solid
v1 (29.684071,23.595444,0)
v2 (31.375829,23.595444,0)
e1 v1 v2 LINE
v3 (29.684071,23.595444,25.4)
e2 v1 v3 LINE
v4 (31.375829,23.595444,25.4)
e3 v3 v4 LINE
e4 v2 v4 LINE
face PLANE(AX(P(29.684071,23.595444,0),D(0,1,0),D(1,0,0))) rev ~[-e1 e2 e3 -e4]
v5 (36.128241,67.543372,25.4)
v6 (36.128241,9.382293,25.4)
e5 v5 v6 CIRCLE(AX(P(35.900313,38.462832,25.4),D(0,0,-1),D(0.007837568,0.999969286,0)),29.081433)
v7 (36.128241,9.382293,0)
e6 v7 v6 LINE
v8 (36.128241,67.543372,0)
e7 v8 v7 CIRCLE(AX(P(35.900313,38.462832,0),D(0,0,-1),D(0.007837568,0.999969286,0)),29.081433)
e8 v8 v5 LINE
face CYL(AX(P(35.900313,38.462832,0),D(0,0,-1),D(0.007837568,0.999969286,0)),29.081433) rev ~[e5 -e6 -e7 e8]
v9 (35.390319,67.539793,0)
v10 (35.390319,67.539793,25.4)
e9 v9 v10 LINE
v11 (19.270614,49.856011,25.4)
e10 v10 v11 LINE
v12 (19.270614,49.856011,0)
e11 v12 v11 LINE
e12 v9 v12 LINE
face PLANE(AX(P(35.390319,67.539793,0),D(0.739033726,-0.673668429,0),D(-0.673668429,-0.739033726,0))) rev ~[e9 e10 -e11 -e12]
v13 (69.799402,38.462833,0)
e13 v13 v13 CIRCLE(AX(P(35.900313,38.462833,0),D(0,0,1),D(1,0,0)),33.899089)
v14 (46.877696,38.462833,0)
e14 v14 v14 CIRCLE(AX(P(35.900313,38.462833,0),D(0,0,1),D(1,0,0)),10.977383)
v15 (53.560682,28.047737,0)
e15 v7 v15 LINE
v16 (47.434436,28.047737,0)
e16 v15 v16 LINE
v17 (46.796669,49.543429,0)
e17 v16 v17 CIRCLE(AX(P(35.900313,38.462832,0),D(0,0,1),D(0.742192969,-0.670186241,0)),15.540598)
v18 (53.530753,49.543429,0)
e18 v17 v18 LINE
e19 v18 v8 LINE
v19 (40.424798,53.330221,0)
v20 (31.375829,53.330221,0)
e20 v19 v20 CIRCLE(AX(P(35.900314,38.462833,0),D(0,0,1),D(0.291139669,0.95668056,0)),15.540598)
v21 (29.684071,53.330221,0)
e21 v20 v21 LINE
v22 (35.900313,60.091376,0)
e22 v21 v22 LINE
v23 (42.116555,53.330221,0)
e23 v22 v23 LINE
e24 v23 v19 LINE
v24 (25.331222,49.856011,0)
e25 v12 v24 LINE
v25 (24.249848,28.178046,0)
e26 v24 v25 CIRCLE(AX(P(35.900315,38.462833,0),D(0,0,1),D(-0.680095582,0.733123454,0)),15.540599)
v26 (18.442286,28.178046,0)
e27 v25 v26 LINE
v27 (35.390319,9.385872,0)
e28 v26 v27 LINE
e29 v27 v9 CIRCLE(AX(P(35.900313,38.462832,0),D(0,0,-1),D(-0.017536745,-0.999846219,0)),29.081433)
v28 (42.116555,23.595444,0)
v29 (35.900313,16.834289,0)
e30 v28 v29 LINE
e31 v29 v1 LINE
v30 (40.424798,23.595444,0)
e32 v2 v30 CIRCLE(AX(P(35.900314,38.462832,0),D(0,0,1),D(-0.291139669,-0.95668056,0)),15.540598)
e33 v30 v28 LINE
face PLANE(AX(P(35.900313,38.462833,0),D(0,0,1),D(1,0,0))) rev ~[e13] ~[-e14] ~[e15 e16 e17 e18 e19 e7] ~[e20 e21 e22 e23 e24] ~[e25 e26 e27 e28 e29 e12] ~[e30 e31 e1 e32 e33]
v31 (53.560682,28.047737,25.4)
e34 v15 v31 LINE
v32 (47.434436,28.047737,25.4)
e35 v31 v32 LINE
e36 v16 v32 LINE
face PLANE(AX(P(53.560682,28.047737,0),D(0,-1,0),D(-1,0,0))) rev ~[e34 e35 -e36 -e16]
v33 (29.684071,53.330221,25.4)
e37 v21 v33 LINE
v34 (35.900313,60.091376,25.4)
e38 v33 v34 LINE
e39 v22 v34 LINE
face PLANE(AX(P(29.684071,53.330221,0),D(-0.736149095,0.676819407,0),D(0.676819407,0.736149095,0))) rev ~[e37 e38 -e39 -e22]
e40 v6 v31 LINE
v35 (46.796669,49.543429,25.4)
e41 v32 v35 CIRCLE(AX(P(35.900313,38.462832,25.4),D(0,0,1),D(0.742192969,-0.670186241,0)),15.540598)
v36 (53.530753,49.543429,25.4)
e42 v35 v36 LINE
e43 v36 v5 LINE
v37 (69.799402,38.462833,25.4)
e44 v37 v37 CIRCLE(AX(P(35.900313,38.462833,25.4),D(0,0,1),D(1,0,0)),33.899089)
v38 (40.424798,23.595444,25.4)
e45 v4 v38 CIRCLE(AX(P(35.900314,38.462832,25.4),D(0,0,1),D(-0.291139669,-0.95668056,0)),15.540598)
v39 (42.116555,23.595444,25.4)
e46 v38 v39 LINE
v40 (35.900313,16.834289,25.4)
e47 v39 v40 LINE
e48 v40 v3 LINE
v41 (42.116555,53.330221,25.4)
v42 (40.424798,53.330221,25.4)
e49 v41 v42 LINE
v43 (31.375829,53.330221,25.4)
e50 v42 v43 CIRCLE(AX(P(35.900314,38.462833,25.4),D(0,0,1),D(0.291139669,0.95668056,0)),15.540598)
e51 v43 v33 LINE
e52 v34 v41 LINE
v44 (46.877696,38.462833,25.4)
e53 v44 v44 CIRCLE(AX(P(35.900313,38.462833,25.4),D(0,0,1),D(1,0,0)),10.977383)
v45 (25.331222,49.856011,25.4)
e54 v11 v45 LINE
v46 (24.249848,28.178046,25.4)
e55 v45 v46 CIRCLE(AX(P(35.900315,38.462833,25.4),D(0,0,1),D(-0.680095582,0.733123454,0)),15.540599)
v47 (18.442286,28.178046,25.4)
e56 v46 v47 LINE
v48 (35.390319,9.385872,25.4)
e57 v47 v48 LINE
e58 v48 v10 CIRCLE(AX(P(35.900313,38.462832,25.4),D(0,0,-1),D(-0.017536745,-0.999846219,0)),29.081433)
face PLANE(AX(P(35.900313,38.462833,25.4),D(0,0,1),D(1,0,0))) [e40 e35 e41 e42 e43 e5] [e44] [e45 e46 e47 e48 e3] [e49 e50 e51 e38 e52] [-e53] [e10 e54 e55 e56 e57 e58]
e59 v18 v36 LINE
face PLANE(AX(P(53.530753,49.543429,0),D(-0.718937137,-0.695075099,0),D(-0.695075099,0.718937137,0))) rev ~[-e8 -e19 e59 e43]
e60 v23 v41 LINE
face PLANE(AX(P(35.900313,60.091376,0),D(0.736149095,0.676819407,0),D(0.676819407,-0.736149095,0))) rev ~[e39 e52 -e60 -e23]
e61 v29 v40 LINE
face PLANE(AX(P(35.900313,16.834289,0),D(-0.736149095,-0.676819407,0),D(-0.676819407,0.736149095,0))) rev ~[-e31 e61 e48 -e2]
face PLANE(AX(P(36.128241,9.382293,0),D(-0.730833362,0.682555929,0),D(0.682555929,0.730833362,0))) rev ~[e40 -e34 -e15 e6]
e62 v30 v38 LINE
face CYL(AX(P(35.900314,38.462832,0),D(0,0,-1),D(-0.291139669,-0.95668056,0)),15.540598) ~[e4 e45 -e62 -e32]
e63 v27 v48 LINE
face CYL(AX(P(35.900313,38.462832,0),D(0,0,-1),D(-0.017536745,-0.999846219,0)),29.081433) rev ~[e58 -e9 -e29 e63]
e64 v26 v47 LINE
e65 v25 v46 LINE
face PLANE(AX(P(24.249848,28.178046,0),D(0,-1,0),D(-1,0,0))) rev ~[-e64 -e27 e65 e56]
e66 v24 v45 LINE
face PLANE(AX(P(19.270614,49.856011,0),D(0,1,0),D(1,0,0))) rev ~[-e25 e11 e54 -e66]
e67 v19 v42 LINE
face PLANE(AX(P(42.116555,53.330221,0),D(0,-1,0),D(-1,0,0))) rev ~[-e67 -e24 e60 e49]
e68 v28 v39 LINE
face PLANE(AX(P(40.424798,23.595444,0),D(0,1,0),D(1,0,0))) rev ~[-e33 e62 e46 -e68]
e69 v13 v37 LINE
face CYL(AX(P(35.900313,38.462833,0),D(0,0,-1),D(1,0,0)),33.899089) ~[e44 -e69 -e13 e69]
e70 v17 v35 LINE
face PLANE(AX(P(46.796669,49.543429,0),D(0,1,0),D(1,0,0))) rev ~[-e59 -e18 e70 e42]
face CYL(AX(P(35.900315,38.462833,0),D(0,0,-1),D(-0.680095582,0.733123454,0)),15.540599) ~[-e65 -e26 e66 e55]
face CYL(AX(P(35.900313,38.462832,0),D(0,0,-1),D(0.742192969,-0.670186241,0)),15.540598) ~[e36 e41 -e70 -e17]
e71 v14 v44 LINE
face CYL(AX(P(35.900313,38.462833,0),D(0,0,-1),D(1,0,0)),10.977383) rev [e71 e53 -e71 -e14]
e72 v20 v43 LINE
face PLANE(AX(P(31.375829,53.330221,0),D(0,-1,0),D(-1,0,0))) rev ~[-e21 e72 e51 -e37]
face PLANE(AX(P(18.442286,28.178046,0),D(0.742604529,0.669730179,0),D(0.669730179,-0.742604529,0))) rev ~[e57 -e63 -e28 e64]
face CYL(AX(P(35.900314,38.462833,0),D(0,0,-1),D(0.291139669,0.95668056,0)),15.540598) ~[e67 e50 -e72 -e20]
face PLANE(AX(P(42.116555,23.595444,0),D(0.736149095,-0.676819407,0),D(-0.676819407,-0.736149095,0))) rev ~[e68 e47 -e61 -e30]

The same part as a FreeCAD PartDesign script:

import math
import FreeCAD as App
import Part
import Sketcher
from FreeCAD import Vector
Q = App.Units.Quantity

doc = App.newDocument("Part")
body = doc.addObject("PartDesign::Body", "Body")

sketch1 = body.newObject("Sketcher::SketchObject", "Sketch")
sketch1.AttachmentSupport = (doc.getObject("XY_Plane"), [""])
sketch1.MapMode = "FlatFace"
sketch1.addGeometry([
    Part.Circle(Vector(35.9, 38.5, 0), Vector(0, 0, 1), 33.9),
    Part.LineSegment(Vector(35.9, 16.8, 0), Vector(29.7, 23.6, 0)),
    Part.LineSegment(Vector(29.7, 23.6, 0), Vector(31.4, 23.6, 0)),
    Part.ArcOfCircle(Part.Circle(Vector(35.9, 38.5, 0), Vector(0, 0, 1), 15.5), math.radians(-107), math.radians(-73)),
    Part.LineSegment(Vector(40.4, 23.6, 0), Vector(42.1, 23.6, 0)),
    Part.LineSegment(Vector(42.1, 23.6, 0), Vector(35.9, 16.8, 0)),
    Part.ArcOfCircle(Part.Circle(Vector(35.9, 38.5, 0), Vector(0, 0, 1), 29.1), math.radians(91), math.radians(269)),
    Part.LineSegment(Vector(35.4, 67.5, 0), Vector(19.3, 49.9, 0)),
    Part.LineSegment(Vector(19.3, 49.9, 0), Vector(25.3, 49.9, 0)),
    Part.ArcOfCircle(Part.Circle(Vector(35.9, 38.5, 0), Vector(0, 0, 1), 15.5), math.radians(133), math.radians(221)),
    Part.LineSegment(Vector(24.2, 28.2, 0), Vector(18.4, 28.2, 0)),
    Part.LineSegment(Vector(18.4, 28.2, 0), Vector(35.4, 9.4, 0)),
    Part.Circle(Vector(35.9, 38.5, 0), Vector(0, 0, 1), 11),
    Part.LineSegment(Vector(53.5, 49.5, 0), Vector(36.1, 67.5, 0)),
    Part.ArcOfCircle(Part.Circle(Vector(35.9, 38.5, 0), Vector(0, 0, 1), 29.1), math.radians(-90), math.radians(90)),
    Part.LineSegment(Vector(36.1, 9.4, 0), Vector(53.6, 28, 0)),
    Part.LineSegment(Vector(53.6, 28, 0), Vector(47.4, 28, 0)),
    Part.ArcOfCircle(Part.Circle(Vector(35.9, 38.5, 0), Vector(0, 0, 1), 15.5), math.radians(-42), math.radians(45)),
    Part.LineSegment(Vector(46.8, 49.5, 0), Vector(53.5, 49.5, 0)),
    Part.LineSegment(Vector(42.1, 53.3, 0), Vector(40.4, 53.3, 0)),
    Part.ArcOfCircle(Part.Circle(Vector(35.9, 38.5, 0), Vector(0, 0, 1), 15.5), math.radians(73), math.radians(107)),
    Part.LineSegment(Vector(31.4, 53.3, 0), Vector(29.7, 53.3, 0)),
    Part.LineSegment(Vector(29.7, 53.3, 0), Vector(35.9, 60.1, 0)),
    Part.LineSegment(Vector(35.9, 60.1, 0), Vector(42.1, 53.3, 0)),
], False)
sketch1.addConstraint([
    Sketcher.Constraint("Coincident", 1, 2, 2, 1),
    Sketcher.Constraint("Coincident", 2, 2, 3, 1),
    Sketcher.Constraint("Coincident", 3, 2, 4, 1),
    Sketcher.Constraint("Coincident", 4, 2, 5, 1),
    Sketcher.Constraint("Coincident", 5, 2, 1, 1),
    Sketcher.Constraint("Coincident", 6, 1, 7, 1),
    Sketcher.Constraint("Coincident", 7, 2, 8, 1),
    Sketcher.Constraint("Coincident", 8, 2, 9, 1),
    Sketcher.Constraint("Coincident", 9, 2, 10, 1),
    Sketcher.Constraint("Coincident", 10, 2, 11, 1),
    Sketcher.Constraint("Coincident", 11, 2, 6, 2),
    Sketcher.Constraint("Coincident", 13, 2, 14, 2),
    Sketcher.Constraint("Coincident", 14, 1, 15, 1),
    Sketcher.Constraint("Coincident", 15, 2, 16, 1),
    Sketcher.Constraint("Coincident", 16, 2, 17, 1),
    Sketcher.Constraint("Coincident", 17, 2, 18, 1),
    Sketcher.Constraint("Coincident", 18, 2, 13, 1),
    Sketcher.Constraint("Coincident", 19, 2, 20, 1),
    Sketcher.Constraint("Coincident", 20, 2, 21, 1),
    Sketcher.Constraint("Coincident", 21, 2, 22, 1),
    Sketcher.Constraint("Coincident", 22, 2, 23, 1),
    Sketcher.Constraint("Coincident", 23, 2, 19, 1),
    Sketcher.Constraint("Horizontal", 2),
    Sketcher.Constraint("Horizontal", 4),
    Sketcher.Constraint("Horizontal", 8),
    Sketcher.Constraint("Horizontal", 10),
    Sketcher.Constraint("Horizontal", 16),
    Sketcher.Constraint("Horizontal", 18),
    Sketcher.Constraint("Horizontal", 19),
    Sketcher.Constraint("Horizontal", 21),
    Sketcher.Constraint("Coincident", 3, 3, 0, 3),
    Sketcher.Constraint("Coincident", 6, 3, 0, 3),
    Sketcher.Constraint("Coincident", 9, 3, 0, 3),
    Sketcher.Constraint("Coincident", 12, 3, 0, 3),
    Sketcher.Constraint("Coincident", 14, 3, 0, 3),
    Sketcher.Constraint("Coincident", 17, 3, 0, 3),
    Sketcher.Constraint("Coincident", 20, 3, 0, 3),
    Sketcher.Constraint("Equal", 3, 9),
    Sketcher.Constraint("Equal", 6, 14),
    Sketcher.Constraint("Equal", 9, 17),
    Sketcher.Constraint("Equal", 17, 20),
    Sketcher.Constraint("Parallel", 5, 22),
    Sketcher.Constraint("Parallel", 1, 23),
    Sketcher.Constraint("Horizontal", 2, 2, 3, 2),
    Sketcher.Constraint("Horizontal", 19, 2, 20, 2),
    Sketcher.Constraint("Vertical", 20, 3, 5, 2),
    Sketcher.Constraint("Vertical", 6, 1, 11, 2),
    Sketcher.Constraint("Vertical", 13, 2, 14, 1),
    Sketcher.Constraint("Vertical", 3, 2, 19, 2),
    Sketcher.Constraint("Vertical", 1, 2, 21, 2),
    Sketcher.Constraint("Vertical", 5, 2, 22, 2),
    Sketcher.Constraint("Vertical", 4, 2, 23, 2),
    Sketcher.Constraint("Radius", 9, Q("15.540599 mm")),
    Sketcher.Constraint("Diameter", 0, Q("67.798178 mm")),
    Sketcher.Constraint("Diameter", 12, Q("21.954766 mm")),
    Sketcher.Constraint("Radius", 6, Q("29.081433 mm")),
    Sketcher.Constraint("DistanceX", 2, 1, 2, 2, Q("1.691758 mm")),
    Sketcher.Constraint("DistanceX", 8, 1, 8, 2, Q("6.060608 mm")),
    Sketcher.Constraint("DistanceX", -1, 1, 3, 2, Q("40.424798 mm")),
    Sketcher.Constraint("DistanceX", 7, 2, 0, 3, Q("16.629699 mm")),
    Sketcher.Constraint("DistanceY", 1, 2, 9, 2, Q("4.582602 mm")),
    Sketcher.Constraint("Distance", 1, Q("9.184491 mm")),
    Sketcher.Constraint("Distance", 13, Q("25.03688 mm")),
    Sketcher.Constraint("DistanceX", 10, 2, 10, 1, Q("5.807562 mm")),
    Sketcher.Constraint("DistanceX", 16, 2, 16, 1, Q("6.126246 mm")),
    Sketcher.Constraint("DistanceX", 18, 1, 18, 2, Q("6.734084 mm")),
    Sketcher.Constraint("DistanceY", -1, 1, 3, 3, Q("38.462832 mm")),
    Sketcher.Constraint("DistanceX", -1, 1, 1, 2, Q("29.684071 mm")),
    Sketcher.Constraint("DistanceX", -1, 1, 6, 1, Q("35.390319 mm")),
    Sketcher.Constraint("DistanceX", -1, 1, 13, 2, Q("36.128241 mm")),
    Sketcher.Constraint("DistanceX", 3, 3, 15, 2, Q("17.660368 mm")),
])
pad1 = body.newObject("PartDesign::Pad", "Pad")
pad1.Profile = sketch1
pad1.Length = Q("1 in")

doc.recompute()
